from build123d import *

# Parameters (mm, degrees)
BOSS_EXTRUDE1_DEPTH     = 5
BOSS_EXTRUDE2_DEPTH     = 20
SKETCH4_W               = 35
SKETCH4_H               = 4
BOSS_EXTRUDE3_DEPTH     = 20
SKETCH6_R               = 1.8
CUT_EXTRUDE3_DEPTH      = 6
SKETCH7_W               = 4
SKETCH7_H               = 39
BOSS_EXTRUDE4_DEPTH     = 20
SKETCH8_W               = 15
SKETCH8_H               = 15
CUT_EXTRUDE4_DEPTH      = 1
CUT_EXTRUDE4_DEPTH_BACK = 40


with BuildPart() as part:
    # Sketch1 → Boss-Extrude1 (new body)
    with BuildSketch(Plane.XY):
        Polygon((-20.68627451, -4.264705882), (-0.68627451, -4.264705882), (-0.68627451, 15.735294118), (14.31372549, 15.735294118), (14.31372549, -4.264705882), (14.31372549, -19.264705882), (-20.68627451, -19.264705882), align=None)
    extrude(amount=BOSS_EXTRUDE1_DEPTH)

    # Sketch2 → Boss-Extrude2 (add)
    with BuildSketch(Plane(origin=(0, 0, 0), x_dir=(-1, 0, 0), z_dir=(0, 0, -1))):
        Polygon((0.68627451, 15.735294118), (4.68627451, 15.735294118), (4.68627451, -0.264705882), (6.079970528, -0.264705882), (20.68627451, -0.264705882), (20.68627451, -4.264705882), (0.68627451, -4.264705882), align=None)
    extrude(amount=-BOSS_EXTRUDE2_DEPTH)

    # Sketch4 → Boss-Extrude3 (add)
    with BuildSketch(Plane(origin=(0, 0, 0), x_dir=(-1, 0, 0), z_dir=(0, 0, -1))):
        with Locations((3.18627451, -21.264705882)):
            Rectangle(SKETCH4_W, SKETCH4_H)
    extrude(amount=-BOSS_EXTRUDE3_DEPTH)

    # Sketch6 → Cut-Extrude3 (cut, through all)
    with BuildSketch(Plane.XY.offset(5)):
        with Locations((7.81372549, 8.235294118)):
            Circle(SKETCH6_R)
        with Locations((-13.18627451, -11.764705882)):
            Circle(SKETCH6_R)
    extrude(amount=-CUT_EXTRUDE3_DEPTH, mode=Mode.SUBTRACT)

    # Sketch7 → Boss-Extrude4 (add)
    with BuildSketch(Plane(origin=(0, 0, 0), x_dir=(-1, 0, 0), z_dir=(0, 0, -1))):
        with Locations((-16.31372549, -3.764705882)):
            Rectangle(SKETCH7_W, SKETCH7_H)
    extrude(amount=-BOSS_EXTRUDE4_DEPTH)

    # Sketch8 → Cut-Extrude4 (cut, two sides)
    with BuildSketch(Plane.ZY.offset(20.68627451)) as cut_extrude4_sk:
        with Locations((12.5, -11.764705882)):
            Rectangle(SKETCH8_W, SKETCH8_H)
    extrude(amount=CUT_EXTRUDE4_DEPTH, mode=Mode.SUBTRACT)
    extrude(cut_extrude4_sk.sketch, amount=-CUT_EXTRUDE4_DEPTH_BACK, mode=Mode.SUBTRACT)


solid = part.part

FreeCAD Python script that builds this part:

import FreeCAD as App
import Part
import Sketcher
from FreeCAD import Vector
Q = App.Units.Quantity

doc = App.newDocument("Part")
body = doc.addObject("PartDesign::Body", "Body")

# Sketch on XY plane
sketch1 = body.newObject("Sketcher::SketchObject", "Sketch")
sketch1.AttachmentSupport = (doc.getObject("XY_Plane"), [""])
sketch1.MapMode = "FlatFace"
sketch1.addGeometry([
    Part.LineSegment(Vector(-1, -4, 0), Vector(-21, -4, 0)),  # 0
    Part.LineSegment(Vector(-21, -4, 0), Vector(-21, -19, 0)),  # 1
    Part.LineSegment(Vector(-21, -19, 0), Vector(14, -19, 0)),  # 2
    Part.LineSegment(Vector(14, -19, 0), Vector(14, 16, 0)),  # 3
    Part.LineSegment(Vector(14, 16, 0), Vector(-1, 16, 0)),  # 4
    Part.LineSegment(Vector(-1, 16, 0), Vector(-1, -4, 0)),  # 5
], False)
sketch1.addConstraint([
    Sketcher.Constraint("Coincident", 0, 2, 1, 1),
    Sketcher.Constraint("Coincident", 1, 2, 2, 1),
    Sketcher.Constraint("Coincident", 2, 2, 3, 1),
    Sketcher.Constraint("Coincident", 3, 2, 4, 1),
    Sketcher.Constraint("Coincident", 4, 2, 5, 1),
    Sketcher.Constraint("Coincident", 5, 2, 0, 1),
    Sketcher.Constraint("Horizontal", 0),
    Sketcher.Constraint("Vertical", 1),
    Sketcher.Constraint("Horizontal", 2),
    Sketcher.Constraint("Vertical", 3),
    Sketcher.Constraint("Horizontal", 4),
    Sketcher.Constraint("Vertical", 5),
    Sketcher.Constraint("Equal", 4, 1),
    Sketcher.Constraint("Equal", 2, 3),
    Sketcher.Constraint("DistanceX", 0, 2, 0, 1, Q("20 mm")),
    Sketcher.Constraint("DistanceX", 2, 1, 2, 2, Q("35 mm")),
    Sketcher.Constraint("DistanceX", 0, 2, -1, 1, Q("20.686275 mm")),
    Sketcher.Constraint("DistanceY", 0, 2, -1, 1, Q("4.264706 mm")),
])
pad1 = body.newObject("PartDesign::Pad", "Pad")
pad1.Profile = sketch1
pad1.Length = 5

# Sketch on XY plane
sketch2 = body.newObject("Sketcher::SketchObject", "Sketch001")
sketch2.AttachmentSupport = (doc.getObject("XY_Plane"), [""])
sketch2.MapMode = "FlatFace"
sketch2.addGeometry([
    Part.LineSegment(Vector(-4.7, 15.7, 0), Vector(-0.7, 15.7, 0)),  # 0
    Part.LineSegment(Vector(-0.7, 15.7, 0), Vector(-0.7, -4.3, 0)),  # 1
    Part.LineSegment(Vector(-0.7, -4.3, 0), Vector(-20.7, -4.3, 0)),  # 2
    Part.LineSegment(Vector(-20.7, -4.3, 0), Vector(-20.7, -0.3, 0)),  # 3
    Part.LineSegment(Vector(-20.7, -0.3, 0), Vector(-4.7, -0.3, 0)),  # 4
    Part.LineSegment(Vector(-4.7, -0.3, 0), Vector(-4.7, 15.7, 0)),  # 5
], False)
sketch2.addConstraint([
    Sketcher.Constraint("Coincident", 0, 2, 1, 1),
    Sketcher.Constraint("Coincident", 1, 2, 2, 1),
    Sketcher.Constraint("Coincident", 2, 2, 3, 1),
    Sketcher.Constraint("Coincident", 3, 2, 4, 1),
    Sketcher.Constraint("Coincident", 4, 2, 5, 1),
    Sketcher.Constraint("Coincident", 5, 2, 0, 1),
    Sketcher.Constraint("Horizontal", 0),
    Sketcher.Constraint("Vertical", 1),
    Sketcher.Constraint("Horizontal", 2),
    Sketcher.Constraint("Vertical", 3),
    Sketcher.Constraint("Horizontal", 4),
    Sketcher.Constraint("Vertical", 5),
    Sketcher.Constraint("Equal", 2, 1),
    Sketcher.Constraint("Equal", 0, 3),
    Sketcher.Constraint("DistanceX", 0, 1, 0, 2, Q("4 mm")),
    Sketcher.Constraint("DistanceX", 2, 2, 2, 1, Q("20 mm")),
    Sketcher.Constraint("DistanceX", 0, 2, -1, 1, Q("0.686275 mm")),
    Sketcher.Constraint("DistanceY", -1, 1, 0, 2, Q("15.735294 mm")),
])
pad2 = body.newObject("PartDesign::Pad", "Pad001")
pad2.Profile = sketch2
pad2.Length = 20

# Sketch on XY plane
sketch3 = body.newObject("Sketcher::SketchObject", "Sketch002")
sketch3.AttachmentSupport = (doc.getObject("XY_Plane"), [""])
sketch3.MapMode = "FlatFace"
sketch3.addGeometry([
    Part.LineSegment(Vector(14.3, -19.3, 0), Vector(14.3, -23.3, 0)),
    Part.LineSegment(Vector(14.3, -23.3, 0), Vector(-20.7, -23.3, 0)),
    Part.LineSegment(Vector(-20.7, -23.3, 0), Vector(-20.7, -19.3, 0)),
    Part.LineSegment(Vector(-20.7, -19.3, 0), Vector(14.3, -19.3, 0)),
], False)
sketch3.addConstraint([
    Sketcher.Constraint("Coincident", 0, 2, 1, 1),
    Sketcher.Constraint("Coincident", 1, 2, 2, 1),
    Sketcher.Constraint("Coincident", 2, 2, 3, 1),
    Sketcher.Constraint("Coincident", 3, 2, 0, 1),
    Sketcher.Constraint("Vertical", 0),
    Sketcher.Constraint("Horizontal", 1),
    Sketcher.Constraint("Vertical", 2),
    Sketcher.Constraint("Horizontal", 3),
    Sketcher.Constraint("DistanceX", 1, 2, 1, 1, Q("35 mm")),
    Sketcher.Constraint("DistanceY", 0, 2, 0, 1, Q("4 mm")),
    Sketcher.Constraint("DistanceX", -1, 1, 0, 2, Q("14.313725 mm")),
    Sketcher.Constraint("DistanceY", 0, 2, -1, 1, Q("23.264706 mm")),
])
pad3 = body.newObject("PartDesign::Pad", "Pad002")
pad3.Profile = sketch3
pad3.Length = 20

# Sketch on XY plane
sketch4 = body.newObject("Sketcher::SketchObject", "Sketch003")
sketch4.AttachmentSupport = (doc.getObject("XY_Plane"), [""])
sketch4.MapMode = "FlatFace"
sketch4.AttachmentOffset = App.Placement(Vector(0, 0, 5), App.Rotation())
sketch4.addGeometry([
    Part.Circle(Vector(7.8, 8.2, 0), Vector(0, 0, 1), 1.8),
    Part.Circle(Vector(-13.2, -11.8, 0), Vector(0, 0, 1), 1.8),
], False)
sketch4.addConstraint([
    Sketcher.Constraint("Equal", 0, 1),
    Sketcher.Constraint("Diameter", 0, Q("3.6 mm")),
    Sketcher.Constraint("DistanceX", 1, 3, 0, 3, Q("21 mm")),
    Sketcher.Constraint("DistanceY", 1, 3, 0, 3, Q("20 mm")),
    Sketcher.Constraint("DistanceX", -1, 1, 0, 3, Q("7.813725 mm")),
    Sketcher.Constraint("DistanceY", -1, 1, 0, 3, Q("8.235294 mm")),
])
pocket1 = body.newObject("PartDesign::Pocket", "Pocket")
pocket1.Profile = sketch4
pocket1.Type = "ThroughAll"

# Sketch on XY plane
sketch5 = body.newObject("Sketcher::SketchObject", "Sketch004")
sketch5.AttachmentSupport = (doc.getObject("XY_Plane"), [""])
sketch5.MapMode = "FlatFace"
sketch5.addGeometry([
    Part.LineSegment(Vector(18.3, 15.7, 0), Vector(18.3, -23.3, 0)),
    Part.LineSegment(Vector(18.3, -23.3, 0), Vector(14.3, -23.3, 0)),
    Part.LineSegment(Vector(14.3, -23.3, 0), Vector(14.3, 15.7, 0)),
    Part.LineSegment(Vector(14.3, 15.7, 0), Vector(18.3, 15.7, 0)),
], False)
sketch5.addConstraint([
    Sketcher.Constraint("Coincident", 0, 2, 1, 1),
    Sketcher.Constraint("Coincident", 1, 2, 2, 1),
    Sketcher.Constraint("Coincident", 2, 2, 3, 1),
    Sketcher.Constraint("Coincident", 3, 2, 0, 1),
    Sketcher.Constraint("Vertical", 0),
    Sketcher.Constraint("Horizontal", 1),
    Sketcher.Constraint("Vertical", 2),
    Sketcher.Constraint("Horizontal", 3),
    Sketcher.Constraint("DistanceX", 1, 2, 1, 1, Q("4 mm")),
    Sketcher.Constraint("DistanceY", 0, 2, 0, 1, Q("39 mm")),
    Sketcher.Constraint("DistanceX", -1, 1, 0, 2, Q("18.313725 mm")),
    Sketcher.Constraint("DistanceY", 0, 2, -1, 1, Q("23.264706 mm")),
])
pad4 = body.newObject("PartDesign::Pad", "Pad003")
pad4.Profile = sketch5
pad4.Length = 20

# Sketch on YZ plane
sketch6 = body.newObject("Sketcher::SketchObject", "Sketch005")
sketch6.AttachmentSupport = (doc.getObject("YZ_Plane"), [""])
sketch6.MapMode = "FlatFace"
sketch6.AttachmentOffset = App.Placement(Vector(0, 0, -20.686275), App.Rotation())
sketch6.addGeometry([
    Part.LineSegment(Vector(-4, 5, 0), Vector(-19, 5, 0)),
    Part.LineSegment(Vector(-19, 5, 0), Vector(-19, 20, 0)),
    Part.LineSegment(Vector(-19, 20, 0), Vector(-4, 20, 0)),
    Part.LineSegment(Vector(-4, 20, 0), Vector(-4, 5, 0)),
], False)
sketch6.addConstraint([
    Sketcher.Constraint("Coincident", 0, 2, 1, 1),
    Sketcher.Constraint("Coincident", 1, 2, 2, 1),
    Sketcher.Constraint("Coincident", 2, 2, 3, 1),
    Sketcher.Constraint("Coincident", 3, 2, 0, 1),
    Sketcher.Constraint("Horizontal", 0),
    Sketcher.Constraint("Vertical", 1),
    Sketcher.Constraint("Horizontal", 2),
    Sketcher.Constraint("Vertical", 3),
    Sketcher.Constraint("Equal", 2, 1),
    Sketcher.Constraint("DistanceX", 0, 2, 0, 1, Q("15 mm")),
    Sketcher.Constraint("DistanceY", -1, 1, 0, 2, Q("5 mm")),
    Sketcher.Constraint("DistanceX", 0, 2, -1, 1, Q("19.264706 mm")),
])
pocket2 = body.newObject("PartDesign::Pocket", "Pocket001")
pocket2.Profile = sketch6
pocket2.Type = "ThroughAll"
pocket2.Midplane = True

doc.recompute()
